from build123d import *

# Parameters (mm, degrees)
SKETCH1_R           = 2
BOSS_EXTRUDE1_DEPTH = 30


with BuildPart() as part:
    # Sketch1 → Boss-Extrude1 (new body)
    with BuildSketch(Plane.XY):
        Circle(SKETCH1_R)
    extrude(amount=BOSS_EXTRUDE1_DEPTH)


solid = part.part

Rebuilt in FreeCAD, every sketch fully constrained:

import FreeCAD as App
import Part
import Sketcher

V = App.Vector
Q = App.Units.Quantity

doc = App.newDocument("Part")
body = doc.addObject("PartDesign::Body", "Body")

sketch1 = body.newObject("Sketcher::SketchObject", "Sketch")
sketch1.AttachmentSupport = (doc.getObject("XY_Plane"), [""])
sketch1.MapMode = "FlatFace"
sketch1.addGeometry(Part.Circle(V(0, 0, 0), V(0, 0, 1), 2), False)
sketch1.addConstraint([
    Sketcher.Constraint("Coincident", 0, 3, -1, 1),
    Sketcher.Constraint("Diameter", 0, Q("4 mm")),
])
pad1 = body.newObject("PartDesign::Pad", "Pad")
pad1.Profile = sketch1
pad1.Length = 30

doc.recompute()
